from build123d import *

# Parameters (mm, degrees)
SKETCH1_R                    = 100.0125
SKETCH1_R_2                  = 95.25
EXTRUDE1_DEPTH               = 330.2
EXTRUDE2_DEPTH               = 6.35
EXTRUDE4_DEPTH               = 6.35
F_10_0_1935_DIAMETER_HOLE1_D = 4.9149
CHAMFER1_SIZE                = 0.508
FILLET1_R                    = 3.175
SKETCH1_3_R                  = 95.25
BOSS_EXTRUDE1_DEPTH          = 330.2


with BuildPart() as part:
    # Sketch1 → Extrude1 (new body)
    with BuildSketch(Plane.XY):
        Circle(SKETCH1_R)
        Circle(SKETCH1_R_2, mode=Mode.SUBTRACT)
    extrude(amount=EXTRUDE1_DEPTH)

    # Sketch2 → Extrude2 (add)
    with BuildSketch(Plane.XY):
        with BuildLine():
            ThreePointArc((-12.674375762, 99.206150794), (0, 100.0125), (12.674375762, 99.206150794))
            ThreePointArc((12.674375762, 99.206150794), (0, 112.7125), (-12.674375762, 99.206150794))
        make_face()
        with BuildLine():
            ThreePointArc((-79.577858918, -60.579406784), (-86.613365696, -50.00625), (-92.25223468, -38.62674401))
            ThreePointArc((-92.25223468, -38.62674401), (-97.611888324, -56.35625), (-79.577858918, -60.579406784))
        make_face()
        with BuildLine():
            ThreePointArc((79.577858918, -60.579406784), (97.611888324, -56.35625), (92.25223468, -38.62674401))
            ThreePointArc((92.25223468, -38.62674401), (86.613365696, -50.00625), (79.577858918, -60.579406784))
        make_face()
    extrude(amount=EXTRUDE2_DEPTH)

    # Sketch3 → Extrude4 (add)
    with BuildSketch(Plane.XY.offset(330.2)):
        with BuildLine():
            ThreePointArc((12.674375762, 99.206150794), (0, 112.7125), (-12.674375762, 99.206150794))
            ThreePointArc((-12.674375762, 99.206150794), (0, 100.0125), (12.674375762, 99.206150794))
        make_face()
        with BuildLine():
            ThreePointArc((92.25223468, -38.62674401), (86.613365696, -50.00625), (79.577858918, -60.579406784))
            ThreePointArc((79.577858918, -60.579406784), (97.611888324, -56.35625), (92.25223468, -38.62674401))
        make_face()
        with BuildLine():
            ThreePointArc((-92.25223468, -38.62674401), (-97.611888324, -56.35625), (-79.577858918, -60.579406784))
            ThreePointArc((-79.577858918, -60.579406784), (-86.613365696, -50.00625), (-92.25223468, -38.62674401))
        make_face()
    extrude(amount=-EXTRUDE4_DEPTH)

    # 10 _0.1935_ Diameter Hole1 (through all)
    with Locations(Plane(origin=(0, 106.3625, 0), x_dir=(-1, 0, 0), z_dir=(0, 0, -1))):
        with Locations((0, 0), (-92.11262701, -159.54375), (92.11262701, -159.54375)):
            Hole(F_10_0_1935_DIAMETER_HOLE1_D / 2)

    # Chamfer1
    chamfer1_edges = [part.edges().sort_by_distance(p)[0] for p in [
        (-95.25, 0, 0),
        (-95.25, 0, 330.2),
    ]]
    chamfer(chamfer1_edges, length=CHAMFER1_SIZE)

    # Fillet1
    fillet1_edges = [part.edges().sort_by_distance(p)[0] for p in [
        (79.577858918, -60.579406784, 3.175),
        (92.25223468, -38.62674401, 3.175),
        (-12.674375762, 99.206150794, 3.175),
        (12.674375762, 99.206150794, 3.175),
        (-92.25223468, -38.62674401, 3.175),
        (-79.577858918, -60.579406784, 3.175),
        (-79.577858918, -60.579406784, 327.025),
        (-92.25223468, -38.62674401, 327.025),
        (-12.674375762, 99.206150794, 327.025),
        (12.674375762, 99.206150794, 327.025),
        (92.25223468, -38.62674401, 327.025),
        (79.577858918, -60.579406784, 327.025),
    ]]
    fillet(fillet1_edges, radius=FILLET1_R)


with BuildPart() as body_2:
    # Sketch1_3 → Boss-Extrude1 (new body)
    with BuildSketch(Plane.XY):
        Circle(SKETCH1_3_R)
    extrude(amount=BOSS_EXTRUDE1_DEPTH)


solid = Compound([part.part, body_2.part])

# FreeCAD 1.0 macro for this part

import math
import FreeCAD as App
import Part
import Sketcher
Q = App.Units.Quantity


def edges_at(feature, points):
    """Names of the edges that pass closest to the given points."""
    edges = feature.Shape.Edges
    near = lambda p: min(range(len(edges)), key=lambda i: edges[i].distToShape(Part.Vertex(*p))[0])
    return sorted({f"Edge{near(p) + 1}" for p in points})

doc = App.newDocument("Part")
body = doc.addObject("PartDesign::Body", "Body")

sketch1 = body.newObject("Sketcher::SketchObject", "Sketch")
sketch1.AttachmentSupport = (doc.getObject("XY_Plane"), [""])
sketch1.MapMode = "FlatFace"
sketch1.addGeometry(Part.Circle(App.Vector(0, 0, 0), App.Vector(0, 0, 1), 100), False)
sketch1.addGeometry(Part.Circle(App.Vector(0, 0, 0), App.Vector(0, 0, 1), 95), False)
sketch1.addConstraint(Sketcher.Constraint("Coincident", 0, 3, -1, 1))
sketch1.addConstraint(Sketcher.Constraint("Coincident", 1, 3, -1, 1))
sketch1.addConstraint(Sketcher.Constraint("Diameter", 1, Q("7.5 in")))
sketch1.addConstraint(Sketcher.Constraint("Diameter", 0, Q("7.875 in")))
pad1 = body.newObject("PartDesign::Pad", "Pad")
pad1.Profile = sketch1
pad1.Length = Q("13 in")

sketch2 = body.newObject("Sketcher::SketchObject", "Sketch001")
sketch2.AttachmentSupport = (doc.getObject("XY_Plane"), [""])
sketch2.MapMode = "FlatFace"
sketch2.addGeometry(Part.ArcOfCircle(Part.Circle(App.Vector(0, 0, 0), App.Vector(0, 0, 1), 100), math.radians(82.72), math.radians(97.28)), False)
sketch2.addGeometry(Part.ArcOfCircle(Part.Circle(App.Vector(0, 100, 0), App.Vector(0, 0, 1), 13), math.radians(-4), math.radians(184)), False)
sketch2.addGeometry(Part.ArcOfCircle(Part.Circle(App.Vector(0, 0, 0), App.Vector(0, 0, 1), 100), math.radians(-157.28), math.radians(-142.72)), False)
sketch2.addGeometry(Part.ArcOfCircle(Part.Circle(App.Vector(-87, -50, 0), App.Vector(0, 0, 1), 13), math.radians(116), math.radians(304)), False)
sketch2.addGeometry(Part.ArcOfCircle(Part.Circle(App.Vector(87, -50, 0), App.Vector(0, 0, 1), 13), math.radians(-124), math.radians(64)), False)
sketch2.addGeometry(Part.ArcOfCircle(Part.Circle(App.Vector(0, 0, 0), App.Vector(0, 0, 1), 100), math.radians(-37.28), math.radians(-22.72)), False)
sketch2.addConstraint(Sketcher.Constraint("Coincident", 0, 1, 1, 1))
sketch2.addConstraint(Sketcher.Constraint("Coincident", 1, 2, 0, 2))
sketch2.addConstraint(Sketcher.Constraint("Coincident", 2, 1, 3, 1))
sketch2.addConstraint(Sketcher.Constraint("Coincident", 3, 2, 2, 2))
sketch2.addConstraint(Sketcher.Constraint("Coincident", 4, 1, 5, 1))
sketch2.addConstraint(Sketcher.Constraint("Coincident", 5, 2, 4, 2))
sketch2.addConstraint(Sketcher.Constraint("Coincident", 0, 3, -1, 1))
sketch2.addConstraint(Sketcher.Constraint("Coincident", 2, 3, -1, 1))
sketch2.addConstraint(Sketcher.Constraint("Coincident", 5, 3, -1, 1))
sketch2.addConstraint(Sketcher.Constraint("Equal", 0, 2))
sketch2.addConstraint(Sketcher.Constraint("Equal", 1, 3))
sketch2.addConstraint(Sketcher.Constraint("Equal", 3, 4))
sketch2.addConstraint(Sketcher.Constraint("Equal", 2, 5))
sketch2.addConstraint(Sketcher.Constraint("Symmetric", 3, 3, 4, 3, -2))
sketch2.addConstraint(Sketcher.Constraint("PointOnObject", 1, 3, -2))
sketch2.addConstraint(Sketcher.Constraint("Radius", 1, Q("0.5 in")))
sketch2.addConstraint(Sketcher.Constraint("Radius", 0, Q("3.9375 in")))
sketch2.addConstraint(Sketcher.Constraint("DistanceY", -1, 1, 1, 3, Q("3.9375 in")))
sketch2.addConstraint(Sketcher.Constraint("DistanceY", 3, 3, -1, 1, Q("1.96875 in")))
sketch2.addConstraint(Sketcher.Constraint("DistanceX", 3, 2, -1, 1, 79.577859))
pad2 = body.newObject("PartDesign::Pad", "Pad001")
pad2.Profile = sketch2
pad2.Length = Q("0.25 in")

sketch3 = body.newObject("Sketcher::SketchObject", "Sketch002")
sketch3.AttachmentSupport = (doc.getObject("XY_Plane"), [""])
sketch3.MapMode = "FlatFace"
sketch3.AttachmentOffset = App.Placement(App.Vector(0, 0, 13 * 25.4), App.Rotation())
sketch3.addGeometry(Part.ArcOfCircle(Part.Circle(App.Vector(0, 100, 0), App.Vector(0, 0, 1), 13), math.radians(-4), math.radians(184)), False)
sketch3.addGeometry(Part.ArcOfCircle(Part.Circle(App.Vector(0, 0, 0), App.Vector(0, 0, 1), 100), math.radians(82.72), math.radians(97.28)), False)
sketch3.addGeometry(Part.ArcOfCircle(Part.Circle(App.Vector(0, 0, 0), App.Vector(0, 0, 1), 100), math.radians(-37.28), math.radians(-22.72)), False)
sketch3.addGeometry(Part.ArcOfCircle(Part.Circle(App.Vector(87, -50, 0), App.Vector(0, 0, 1), 13), math.radians(-124), math.radians(64)), False)
sketch3.addGeometry(Part.ArcOfCircle(Part.Circle(App.Vector(-87, -50, 0), App.Vector(0, 0, 1), 13), math.radians(116), math.radians(304)), False)
sketch3.addGeometry(Part.ArcOfCircle(Part.Circle(App.Vector(0, 0, 0), App.Vector(0, 0, 1), 100), math.radians(-157.28), math.radians(-142.72)), False)
sketch3.addConstraint(Sketcher.Constraint("Coincident", 0, 1, 1, 1))
sketch3.addConstraint(Sketcher.Constraint("Coincident", 1, 2, 0, 2))
sketch3.addConstraint(Sketcher.Constraint("Coincident", 2, 1, 3, 1))
sketch3.addConstraint(Sketcher.Constraint("Coincident", 3, 2, 2, 2))
sketch3.addConstraint(Sketcher.Constraint("Coincident", 4, 1, 5, 1))
sketch3.addConstraint(Sketcher.Constraint("Coincident", 5, 2, 4, 2))
sketch3.addConstraint(Sketcher.Constraint("Coincident", 1, 3, -1, 1))
sketch3.addConstraint(Sketcher.Constraint("Coincident", 2, 3, -1, 1))
sketch3.addConstraint(Sketcher.Constraint("Coincident", 5, 3, -1, 1))
sketch3.addConstraint(Sketcher.Constraint("Equal", 1, 2))
sketch3.addConstraint(Sketcher.Constraint("Equal", 0, 3))
sketch3.addConstraint(Sketcher.Constraint("Equal", 3, 4))
sketch3.addConstraint(Sketcher.Constraint("Equal", 2, 5))
sketch3.addConstraint(Sketcher.Constraint("Symmetric", 3, 3, 4, 3, -2))
sketch3.addConstraint(Sketcher.Constraint("PointOnObject", 0, 3, -2))
sketch3.addConstraint(Sketcher.Constraint("Radius", 0, Q("0.5 in")))
sketch3.addConstraint(Sketcher.Constraint("Radius", 1, Q("3.9375 in")))
sketch3.addConstraint(Sketcher.Constraint("DistanceY", -1, 1, 0, 3, Q("3.9375 in")))
sketch3.addConstraint(Sketcher.Constraint("DistanceY", 3, 3, -1, 1, Q("1.96875 in")))
sketch3.addConstraint(Sketcher.Constraint("DistanceX", -1, 1, 2, 1, 79.577859))
pad3 = body.newObject("PartDesign::Pad", "Pad002")
pad3.Profile = sketch3
pad3.Length = Q("0.25 in")
pad3.Reversed = True

sketch4 = body.newObject("Sketcher::SketchObject", "Sketch003")
sketch4.AttachmentSupport = (doc.getObject("XY_Plane"), [""])
sketch4.MapMode = "FlatFace"
sketch4.addGeometry(Part.Circle(App.Vector(0, 106.4, 0), App.Vector(0, 0, 1), 2.5), False)
sketch4.addGeometry(Part.Circle(App.Vector(92.1, -53.2, 0), App.Vector(0, 0, 1), 2.5), False)
sketch4.addGeometry(Part.Circle(App.Vector(-92.1, -53.2, 0), App.Vector(0, 0, 1), 2.5), False)
sketch4.addConstraint(Sketcher.Constraint("Equal", 0, 1))
sketch4.addConstraint(Sketcher.Constraint("Equal", 1, 2))
sketch4.addConstraint(Sketcher.Constraint("Symmetric", 1, 3, 2, 3, -2))
sketch4.addConstraint(Sketcher.Constraint("PointOnObject", 0, 3, -2))
sketch4.addConstraint(Sketcher.Constraint("Diameter", 0, Q("0.1935 in")))
sketch4.addConstraint(Sketcher.Constraint("DistanceY", -1, 1, 0, 3, Q("4.1875 in")))
sketch4.addConstraint(Sketcher.Constraint("DistanceY", 1, 3, -1, 1, Q("2.09375 in")))
sketch4.addConstraint(Sketcher.Constraint("DistanceX", -1, 1, 1, 3, 92.112627))
doc.recompute()
hole = body.newObject("PartDesign::Hole", "Hole")
hole.Profile = sketch4
hole.ThreadType = "None"
hole.Diameter = Q("0.1935 in")
hole.DepthType = "ThroughAll"
hole.Reversed = True
doc.recompute()

chamfer = body.newObject("PartDesign::Chamfer", "Chamfer")
chamfer.Base = (hole, edges_at(hole, [(-95.25, 0, 0), (-95.25, 0, 330.2)]))
chamfer.Size = Q("0.02 in")
doc.recompute()

fillet = body.newObject("PartDesign::Fillet", "Fillet")
fillet.Base = (chamfer, edges_at(chamfer, [
    (79.578, -60.579, 3.175),
    (92.252, -38.627, 3.175),
    (-12.674, 99.206, 3.175),
    (12.674, 99.206, 3.175),
    (-92.252, -38.627, 3.175),
    (-79.578, -60.579, 3.175),
    (-79.578, -60.579, 327.025),
    (-92.252, -38.627, 327.025),
    (-12.674, 99.206, 327.025),
    (12.674, 99.206, 327.025),
    (92.252, -38.627, 327.025),
    (79.578, -60.579, 327.025),
]))
fillet.Radius = Q("0.125 in")
body2 = doc.addObject("PartDesign::Body", "Body001")

sketch5 = body2.newObject("Sketcher::SketchObject", "Sketch004")
sketch5.AttachmentSupport = (doc.getObject("XY_Plane001"), [""])
sketch5.MapMode = "FlatFace"
sketch5.addGeometry(Part.Circle(App.Vector(0, 0, 0), App.Vector(0, 0, 1), 95), False)
sketch5.addConstraint(Sketcher.Constraint("Coincident", 0, 3, -1, 1))
sketch5.addConstraint(Sketcher.Constraint("Diameter", 0, Q("7.5 in")))
pad4 = body2.newObject("PartDesign::Pad", "Pad003")
pad4.Profile = sketch5
pad4.Length = Q("13 in")

doc.recompute()
